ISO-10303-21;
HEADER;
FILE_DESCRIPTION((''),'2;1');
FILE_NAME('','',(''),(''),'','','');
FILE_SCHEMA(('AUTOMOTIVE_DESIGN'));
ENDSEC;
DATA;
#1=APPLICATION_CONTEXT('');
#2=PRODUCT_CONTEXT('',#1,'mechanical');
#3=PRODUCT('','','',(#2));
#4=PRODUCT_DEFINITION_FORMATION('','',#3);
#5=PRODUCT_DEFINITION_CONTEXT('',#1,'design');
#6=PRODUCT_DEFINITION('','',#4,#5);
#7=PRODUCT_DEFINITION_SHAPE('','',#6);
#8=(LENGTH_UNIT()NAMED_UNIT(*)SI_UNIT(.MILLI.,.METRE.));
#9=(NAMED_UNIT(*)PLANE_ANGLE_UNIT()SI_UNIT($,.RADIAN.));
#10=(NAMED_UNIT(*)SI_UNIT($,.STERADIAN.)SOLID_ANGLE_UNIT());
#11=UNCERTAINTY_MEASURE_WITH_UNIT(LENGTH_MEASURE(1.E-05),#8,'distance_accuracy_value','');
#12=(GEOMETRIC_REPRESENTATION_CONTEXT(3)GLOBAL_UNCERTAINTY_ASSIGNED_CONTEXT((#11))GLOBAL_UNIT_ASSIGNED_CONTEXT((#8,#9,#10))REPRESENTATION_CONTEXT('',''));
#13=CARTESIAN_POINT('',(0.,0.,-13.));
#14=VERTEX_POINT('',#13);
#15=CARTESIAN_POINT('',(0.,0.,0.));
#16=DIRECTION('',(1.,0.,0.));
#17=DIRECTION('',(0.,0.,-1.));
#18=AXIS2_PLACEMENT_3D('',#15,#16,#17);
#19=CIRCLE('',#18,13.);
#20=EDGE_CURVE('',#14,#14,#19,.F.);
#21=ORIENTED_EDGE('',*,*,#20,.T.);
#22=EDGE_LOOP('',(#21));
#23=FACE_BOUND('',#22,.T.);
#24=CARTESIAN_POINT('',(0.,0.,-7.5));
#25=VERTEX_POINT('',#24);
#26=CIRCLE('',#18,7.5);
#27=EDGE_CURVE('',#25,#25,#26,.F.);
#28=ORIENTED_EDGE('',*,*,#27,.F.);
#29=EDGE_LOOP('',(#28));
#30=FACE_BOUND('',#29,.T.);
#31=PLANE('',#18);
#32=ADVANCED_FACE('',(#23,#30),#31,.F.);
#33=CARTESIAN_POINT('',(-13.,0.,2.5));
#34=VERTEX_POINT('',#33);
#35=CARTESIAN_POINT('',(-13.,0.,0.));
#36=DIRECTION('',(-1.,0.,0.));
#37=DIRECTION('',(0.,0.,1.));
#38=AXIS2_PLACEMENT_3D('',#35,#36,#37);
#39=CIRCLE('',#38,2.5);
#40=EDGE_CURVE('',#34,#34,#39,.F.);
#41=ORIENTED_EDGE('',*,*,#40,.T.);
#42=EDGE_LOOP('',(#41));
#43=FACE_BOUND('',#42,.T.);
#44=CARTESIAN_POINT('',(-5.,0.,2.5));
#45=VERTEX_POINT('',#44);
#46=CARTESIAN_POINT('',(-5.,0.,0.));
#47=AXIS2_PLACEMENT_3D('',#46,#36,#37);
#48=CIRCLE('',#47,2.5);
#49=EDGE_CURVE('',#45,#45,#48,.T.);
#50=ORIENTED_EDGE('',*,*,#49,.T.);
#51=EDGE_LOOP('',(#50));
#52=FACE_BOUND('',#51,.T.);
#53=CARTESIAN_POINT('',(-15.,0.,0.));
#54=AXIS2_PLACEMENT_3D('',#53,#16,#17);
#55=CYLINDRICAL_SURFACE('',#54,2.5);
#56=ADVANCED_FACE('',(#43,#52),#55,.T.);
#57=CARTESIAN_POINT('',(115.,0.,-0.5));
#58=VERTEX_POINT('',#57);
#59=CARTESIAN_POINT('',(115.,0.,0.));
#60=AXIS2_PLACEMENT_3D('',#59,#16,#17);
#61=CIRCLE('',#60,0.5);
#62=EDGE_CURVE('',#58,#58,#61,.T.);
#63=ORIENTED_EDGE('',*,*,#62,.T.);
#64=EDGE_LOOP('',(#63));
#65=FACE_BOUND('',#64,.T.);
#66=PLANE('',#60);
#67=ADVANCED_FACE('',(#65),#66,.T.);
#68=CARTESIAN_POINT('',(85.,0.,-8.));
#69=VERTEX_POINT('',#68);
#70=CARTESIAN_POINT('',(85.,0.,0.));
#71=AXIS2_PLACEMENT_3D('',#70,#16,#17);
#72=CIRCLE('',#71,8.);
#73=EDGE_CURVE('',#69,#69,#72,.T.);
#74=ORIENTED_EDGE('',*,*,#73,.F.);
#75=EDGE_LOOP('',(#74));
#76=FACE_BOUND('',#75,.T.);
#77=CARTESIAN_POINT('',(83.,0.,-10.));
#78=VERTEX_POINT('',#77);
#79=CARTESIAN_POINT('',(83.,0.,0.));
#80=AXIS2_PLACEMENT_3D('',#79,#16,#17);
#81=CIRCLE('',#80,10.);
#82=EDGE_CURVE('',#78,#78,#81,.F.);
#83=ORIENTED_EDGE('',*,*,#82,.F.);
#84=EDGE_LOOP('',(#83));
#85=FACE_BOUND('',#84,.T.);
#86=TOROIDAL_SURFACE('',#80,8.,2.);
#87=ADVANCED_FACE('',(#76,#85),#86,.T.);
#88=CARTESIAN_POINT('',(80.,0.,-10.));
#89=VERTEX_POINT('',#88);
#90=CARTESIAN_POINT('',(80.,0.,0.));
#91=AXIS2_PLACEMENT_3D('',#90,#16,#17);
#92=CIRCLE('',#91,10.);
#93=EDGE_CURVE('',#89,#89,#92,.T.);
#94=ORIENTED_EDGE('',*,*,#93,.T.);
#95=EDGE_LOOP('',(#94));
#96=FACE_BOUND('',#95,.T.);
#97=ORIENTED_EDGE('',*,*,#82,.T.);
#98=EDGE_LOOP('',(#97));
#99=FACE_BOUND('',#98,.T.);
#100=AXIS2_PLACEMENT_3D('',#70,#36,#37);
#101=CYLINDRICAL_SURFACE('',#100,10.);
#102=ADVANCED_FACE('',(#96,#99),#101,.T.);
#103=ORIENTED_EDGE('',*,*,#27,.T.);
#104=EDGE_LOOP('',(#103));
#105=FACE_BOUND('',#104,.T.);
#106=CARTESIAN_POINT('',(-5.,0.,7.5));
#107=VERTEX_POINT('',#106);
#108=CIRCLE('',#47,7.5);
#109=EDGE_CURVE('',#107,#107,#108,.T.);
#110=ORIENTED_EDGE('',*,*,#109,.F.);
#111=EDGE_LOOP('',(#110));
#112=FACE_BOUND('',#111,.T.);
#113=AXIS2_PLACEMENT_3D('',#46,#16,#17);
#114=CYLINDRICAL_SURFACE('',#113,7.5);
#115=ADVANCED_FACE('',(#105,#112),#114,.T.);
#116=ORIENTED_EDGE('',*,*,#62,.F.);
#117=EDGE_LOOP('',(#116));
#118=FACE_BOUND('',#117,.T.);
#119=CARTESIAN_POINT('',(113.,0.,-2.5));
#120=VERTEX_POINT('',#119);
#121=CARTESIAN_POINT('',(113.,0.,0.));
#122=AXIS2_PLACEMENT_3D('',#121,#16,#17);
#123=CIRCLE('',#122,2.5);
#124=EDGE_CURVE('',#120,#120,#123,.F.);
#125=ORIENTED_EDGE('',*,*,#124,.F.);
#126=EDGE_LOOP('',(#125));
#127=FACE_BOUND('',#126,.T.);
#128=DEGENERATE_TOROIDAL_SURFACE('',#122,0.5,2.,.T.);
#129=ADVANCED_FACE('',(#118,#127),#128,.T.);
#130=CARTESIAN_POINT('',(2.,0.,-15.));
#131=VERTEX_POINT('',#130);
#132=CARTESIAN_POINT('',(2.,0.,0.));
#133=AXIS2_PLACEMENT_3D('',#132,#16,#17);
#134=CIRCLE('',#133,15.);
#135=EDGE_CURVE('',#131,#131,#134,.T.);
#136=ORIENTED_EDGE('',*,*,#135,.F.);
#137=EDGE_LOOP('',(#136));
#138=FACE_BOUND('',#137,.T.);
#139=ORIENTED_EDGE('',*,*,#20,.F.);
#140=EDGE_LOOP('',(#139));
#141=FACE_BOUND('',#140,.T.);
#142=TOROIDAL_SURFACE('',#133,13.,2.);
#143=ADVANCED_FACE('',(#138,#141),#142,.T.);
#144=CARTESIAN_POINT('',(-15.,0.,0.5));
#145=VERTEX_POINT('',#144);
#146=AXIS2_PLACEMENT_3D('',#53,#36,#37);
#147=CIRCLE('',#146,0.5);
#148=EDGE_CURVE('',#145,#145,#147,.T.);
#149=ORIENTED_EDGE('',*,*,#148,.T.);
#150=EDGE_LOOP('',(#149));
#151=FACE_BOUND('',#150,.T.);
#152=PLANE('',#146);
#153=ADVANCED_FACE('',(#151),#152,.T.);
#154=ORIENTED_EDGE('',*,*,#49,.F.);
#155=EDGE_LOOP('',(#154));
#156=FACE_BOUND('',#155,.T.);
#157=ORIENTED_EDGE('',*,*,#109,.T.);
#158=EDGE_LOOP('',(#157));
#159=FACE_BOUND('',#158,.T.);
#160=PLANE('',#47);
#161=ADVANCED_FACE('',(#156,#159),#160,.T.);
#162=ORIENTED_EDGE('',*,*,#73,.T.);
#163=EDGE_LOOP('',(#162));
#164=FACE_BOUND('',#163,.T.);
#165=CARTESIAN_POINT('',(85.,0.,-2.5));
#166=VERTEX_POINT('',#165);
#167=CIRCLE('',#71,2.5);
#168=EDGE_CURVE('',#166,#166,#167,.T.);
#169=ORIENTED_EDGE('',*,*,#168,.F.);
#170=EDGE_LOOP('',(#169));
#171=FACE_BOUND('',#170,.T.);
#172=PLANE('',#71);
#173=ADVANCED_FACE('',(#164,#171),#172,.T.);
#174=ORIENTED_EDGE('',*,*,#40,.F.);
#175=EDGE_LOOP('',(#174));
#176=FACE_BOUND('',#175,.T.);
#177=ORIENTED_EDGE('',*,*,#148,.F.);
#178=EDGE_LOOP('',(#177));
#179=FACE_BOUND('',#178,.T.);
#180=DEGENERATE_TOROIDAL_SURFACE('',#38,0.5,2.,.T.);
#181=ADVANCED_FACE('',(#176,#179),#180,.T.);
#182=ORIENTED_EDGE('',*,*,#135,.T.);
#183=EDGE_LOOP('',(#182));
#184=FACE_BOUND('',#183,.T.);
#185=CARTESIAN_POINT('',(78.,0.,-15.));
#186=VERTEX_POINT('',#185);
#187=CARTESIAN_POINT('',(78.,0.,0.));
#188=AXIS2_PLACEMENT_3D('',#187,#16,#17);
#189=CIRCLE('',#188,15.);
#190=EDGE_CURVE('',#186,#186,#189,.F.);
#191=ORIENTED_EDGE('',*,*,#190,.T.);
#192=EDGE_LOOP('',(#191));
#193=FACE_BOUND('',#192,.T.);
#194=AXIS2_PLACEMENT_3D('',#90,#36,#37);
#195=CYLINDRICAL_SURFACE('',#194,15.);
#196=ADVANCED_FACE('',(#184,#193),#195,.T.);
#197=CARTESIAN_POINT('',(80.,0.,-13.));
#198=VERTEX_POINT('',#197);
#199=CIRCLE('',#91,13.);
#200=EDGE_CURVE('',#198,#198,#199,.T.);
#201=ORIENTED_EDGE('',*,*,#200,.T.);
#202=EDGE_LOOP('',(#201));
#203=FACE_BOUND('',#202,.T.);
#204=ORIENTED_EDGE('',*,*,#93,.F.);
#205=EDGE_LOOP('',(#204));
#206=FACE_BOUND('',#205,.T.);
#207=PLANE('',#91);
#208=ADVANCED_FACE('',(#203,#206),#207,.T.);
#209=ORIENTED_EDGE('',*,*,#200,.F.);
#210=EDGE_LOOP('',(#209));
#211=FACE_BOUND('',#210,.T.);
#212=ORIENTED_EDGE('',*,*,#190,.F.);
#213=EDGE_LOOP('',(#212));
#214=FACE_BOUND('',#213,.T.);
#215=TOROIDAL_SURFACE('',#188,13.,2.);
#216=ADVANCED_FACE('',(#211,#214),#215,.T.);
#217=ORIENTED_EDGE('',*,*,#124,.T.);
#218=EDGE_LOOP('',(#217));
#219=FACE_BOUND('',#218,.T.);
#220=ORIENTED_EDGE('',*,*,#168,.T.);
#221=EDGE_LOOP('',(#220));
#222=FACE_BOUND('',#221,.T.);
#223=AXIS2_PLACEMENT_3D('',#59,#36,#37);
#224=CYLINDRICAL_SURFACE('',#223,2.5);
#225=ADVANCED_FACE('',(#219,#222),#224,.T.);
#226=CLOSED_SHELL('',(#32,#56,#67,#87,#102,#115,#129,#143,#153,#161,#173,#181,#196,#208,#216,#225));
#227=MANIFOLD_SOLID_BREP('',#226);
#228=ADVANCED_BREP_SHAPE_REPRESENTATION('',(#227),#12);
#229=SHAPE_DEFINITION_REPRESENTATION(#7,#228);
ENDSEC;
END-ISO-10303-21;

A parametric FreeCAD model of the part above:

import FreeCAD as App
import Part
import Sketcher
from FreeCAD import Vector


def edges_at(feature, points):
    """Names of the edges that pass closest to the given points."""
    edges = feature.Shape.Edges
    near = lambda p: min(range(len(edges)), key=lambda i: edges[i].distToShape(Part.Vertex(*p))[0])
    return sorted({f"Edge{near(p) + 1}" for p in points})

doc = App.newDocument("Part")
body = doc.addObject("PartDesign::Body", "Body")

sketch1 = doc.addObject("Sketcher::SketchObject", "Sketch")
body.addObject(sketch1)
sketch1.AttachmentSupport = (doc.YZ_Plane, [""])
sketch1.MapMode = "FlatFace"
sketch1.addGeometry(Part.Circle(Vector(0, 0, 0), Vector(0, 0, 1), 15), False)
sketch1.addConstraint(Sketcher.Constraint("Coincident", 0, 3, -1, 1))
sketch1.addConstraint(Sketcher.Constraint("Diameter", 0, 30.0))
pad1 = doc.addObject("PartDesign::Pad", "Pad")
body.addObject(pad1)
pad1.Profile = sketch1
pad1.Length = 80

sketch2 = doc.addObject("Sketcher::SketchObject", "Sketch001")
body.addObject(sketch2)
sketch2.AttachmentSupport = (doc.YZ_Plane, [""])
sketch2.MapMode = "FlatFace"
sketch2.AttachmentOffset = App.Placement(Vector(0, 0, 80), App.Rotation())
sketch2.addGeometry(Part.Circle(Vector(0, 0, 0), Vector(0, 0, 1), 10), False)
sketch2.addConstraint(Sketcher.Constraint("Coincident", 0, 3, -1, 1))
sketch2.addConstraint(Sketcher.Constraint("Diameter", 0, 20.0))
pad2 = doc.addObject("PartDesign::Pad", "Pad001")
body.addObject(pad2)
pad2.Profile = sketch2
pad2.Length = 5

sketch3 = doc.addObject("Sketcher::SketchObject", "Sketch002")
body.addObject(sketch3)
sketch3.AttachmentSupport = (doc.YZ_Plane, [""])
sketch3.MapMode = "FlatFace"
sketch3.AttachmentOffset = App.Placement(Vector(0, 0, 85), App.Rotation())
sketch3.addGeometry(Part.Circle(Vector(0, 0, 0), Vector(0, 0, 1), 2.5), False)
sketch3.addConstraint(Sketcher.Constraint("Coincident", 0, 3, -1, 1))
sketch3.addConstraint(Sketcher.Constraint("Diameter", 0, 5.0))
pad3 = doc.addObject("PartDesign::Pad", "Pad002")
body.addObject(pad3)
pad3.Profile = sketch3
pad3.Length = 30
doc.recompute()

fillet = doc.addObject("PartDesign::Fillet", "Fillet")
body.addObject(fillet)
fillet.Base = (pad3, edges_at(pad3, [(80, 0, 15)]))
fillet.Radius = 2
doc.recompute()

fillet2 = doc.addObject("PartDesign::Fillet", "Fillet001")
body.addObject(fillet2)
fillet2.Base = (fillet, edges_at(fillet, [(85, 0, 10)]))
fillet2.Radius = 2
doc.recompute()

fillet3 = doc.addObject("PartDesign::Fillet", "Fillet002")
body.addObject(fillet3)
fillet3.Base = (fillet2, edges_at(fillet2, [(0, 0, 15)]))
fillet3.Radius = 2

sketch4 = doc.addObject("Sketcher::SketchObject", "Sketch003")
body.addObject(sketch4)
sketch4.AttachmentSupport = (doc.YZ_Plane, [""])
sketch4.MapMode = "FlatFace"
sketch4.addGeometry(Part.Circle(Vector(0, 0, 0), Vector(0, 0, 1), 8), False)
sketch4.addConstraint(Sketcher.Constraint("Coincident", 0, 3, -1, 1))
sketch4.addConstraint(Sketcher.Constraint("Diameter", 0, 15.0))
pad4 = doc.addObject("PartDesign::Pad", "Pad003")
body.addObject(pad4)
pad4.Profile = sketch4
pad4.Length = 5
pad4.Reversed = True

sketch5 = doc.addObject("Sketcher::SketchObject", "Sketch004")
body.addObject(sketch5)
sketch5.AttachmentSupport = (doc.YZ_Plane, [""])
sketch5.MapMode = "FlatFace"
sketch5.AttachmentOffset = App.Placement(Vector(0, 0, -5), App.Rotation())
sketch5.addGeometry(Part.Circle(Vector(0, 0, 0), Vector(0, 0, 1), 2.5), False)
sketch5.addConstraint(Sketcher.Constraint("Coincident", 0, 3, -1, 1))
sketch5.addConstraint(Sketcher.Constraint("Diameter", 0, 5.0))
pad5 = doc.addObject("PartDesign::Pad", "Pad004")
body.addObject(pad5)
pad5.Profile = sketch5
pad5.Length = 10
pad5.Reversed = True
doc.recompute()

fillet4 = doc.addObject("PartDesign::Fillet", "Fillet003")
body.addObject(fillet4)
fillet4.Base = (pad5, edges_at(pad5, [(115, 0, 2.5), (-15, 0, -2.5)]))
fillet4.Radius = 2

doc.recompute()
